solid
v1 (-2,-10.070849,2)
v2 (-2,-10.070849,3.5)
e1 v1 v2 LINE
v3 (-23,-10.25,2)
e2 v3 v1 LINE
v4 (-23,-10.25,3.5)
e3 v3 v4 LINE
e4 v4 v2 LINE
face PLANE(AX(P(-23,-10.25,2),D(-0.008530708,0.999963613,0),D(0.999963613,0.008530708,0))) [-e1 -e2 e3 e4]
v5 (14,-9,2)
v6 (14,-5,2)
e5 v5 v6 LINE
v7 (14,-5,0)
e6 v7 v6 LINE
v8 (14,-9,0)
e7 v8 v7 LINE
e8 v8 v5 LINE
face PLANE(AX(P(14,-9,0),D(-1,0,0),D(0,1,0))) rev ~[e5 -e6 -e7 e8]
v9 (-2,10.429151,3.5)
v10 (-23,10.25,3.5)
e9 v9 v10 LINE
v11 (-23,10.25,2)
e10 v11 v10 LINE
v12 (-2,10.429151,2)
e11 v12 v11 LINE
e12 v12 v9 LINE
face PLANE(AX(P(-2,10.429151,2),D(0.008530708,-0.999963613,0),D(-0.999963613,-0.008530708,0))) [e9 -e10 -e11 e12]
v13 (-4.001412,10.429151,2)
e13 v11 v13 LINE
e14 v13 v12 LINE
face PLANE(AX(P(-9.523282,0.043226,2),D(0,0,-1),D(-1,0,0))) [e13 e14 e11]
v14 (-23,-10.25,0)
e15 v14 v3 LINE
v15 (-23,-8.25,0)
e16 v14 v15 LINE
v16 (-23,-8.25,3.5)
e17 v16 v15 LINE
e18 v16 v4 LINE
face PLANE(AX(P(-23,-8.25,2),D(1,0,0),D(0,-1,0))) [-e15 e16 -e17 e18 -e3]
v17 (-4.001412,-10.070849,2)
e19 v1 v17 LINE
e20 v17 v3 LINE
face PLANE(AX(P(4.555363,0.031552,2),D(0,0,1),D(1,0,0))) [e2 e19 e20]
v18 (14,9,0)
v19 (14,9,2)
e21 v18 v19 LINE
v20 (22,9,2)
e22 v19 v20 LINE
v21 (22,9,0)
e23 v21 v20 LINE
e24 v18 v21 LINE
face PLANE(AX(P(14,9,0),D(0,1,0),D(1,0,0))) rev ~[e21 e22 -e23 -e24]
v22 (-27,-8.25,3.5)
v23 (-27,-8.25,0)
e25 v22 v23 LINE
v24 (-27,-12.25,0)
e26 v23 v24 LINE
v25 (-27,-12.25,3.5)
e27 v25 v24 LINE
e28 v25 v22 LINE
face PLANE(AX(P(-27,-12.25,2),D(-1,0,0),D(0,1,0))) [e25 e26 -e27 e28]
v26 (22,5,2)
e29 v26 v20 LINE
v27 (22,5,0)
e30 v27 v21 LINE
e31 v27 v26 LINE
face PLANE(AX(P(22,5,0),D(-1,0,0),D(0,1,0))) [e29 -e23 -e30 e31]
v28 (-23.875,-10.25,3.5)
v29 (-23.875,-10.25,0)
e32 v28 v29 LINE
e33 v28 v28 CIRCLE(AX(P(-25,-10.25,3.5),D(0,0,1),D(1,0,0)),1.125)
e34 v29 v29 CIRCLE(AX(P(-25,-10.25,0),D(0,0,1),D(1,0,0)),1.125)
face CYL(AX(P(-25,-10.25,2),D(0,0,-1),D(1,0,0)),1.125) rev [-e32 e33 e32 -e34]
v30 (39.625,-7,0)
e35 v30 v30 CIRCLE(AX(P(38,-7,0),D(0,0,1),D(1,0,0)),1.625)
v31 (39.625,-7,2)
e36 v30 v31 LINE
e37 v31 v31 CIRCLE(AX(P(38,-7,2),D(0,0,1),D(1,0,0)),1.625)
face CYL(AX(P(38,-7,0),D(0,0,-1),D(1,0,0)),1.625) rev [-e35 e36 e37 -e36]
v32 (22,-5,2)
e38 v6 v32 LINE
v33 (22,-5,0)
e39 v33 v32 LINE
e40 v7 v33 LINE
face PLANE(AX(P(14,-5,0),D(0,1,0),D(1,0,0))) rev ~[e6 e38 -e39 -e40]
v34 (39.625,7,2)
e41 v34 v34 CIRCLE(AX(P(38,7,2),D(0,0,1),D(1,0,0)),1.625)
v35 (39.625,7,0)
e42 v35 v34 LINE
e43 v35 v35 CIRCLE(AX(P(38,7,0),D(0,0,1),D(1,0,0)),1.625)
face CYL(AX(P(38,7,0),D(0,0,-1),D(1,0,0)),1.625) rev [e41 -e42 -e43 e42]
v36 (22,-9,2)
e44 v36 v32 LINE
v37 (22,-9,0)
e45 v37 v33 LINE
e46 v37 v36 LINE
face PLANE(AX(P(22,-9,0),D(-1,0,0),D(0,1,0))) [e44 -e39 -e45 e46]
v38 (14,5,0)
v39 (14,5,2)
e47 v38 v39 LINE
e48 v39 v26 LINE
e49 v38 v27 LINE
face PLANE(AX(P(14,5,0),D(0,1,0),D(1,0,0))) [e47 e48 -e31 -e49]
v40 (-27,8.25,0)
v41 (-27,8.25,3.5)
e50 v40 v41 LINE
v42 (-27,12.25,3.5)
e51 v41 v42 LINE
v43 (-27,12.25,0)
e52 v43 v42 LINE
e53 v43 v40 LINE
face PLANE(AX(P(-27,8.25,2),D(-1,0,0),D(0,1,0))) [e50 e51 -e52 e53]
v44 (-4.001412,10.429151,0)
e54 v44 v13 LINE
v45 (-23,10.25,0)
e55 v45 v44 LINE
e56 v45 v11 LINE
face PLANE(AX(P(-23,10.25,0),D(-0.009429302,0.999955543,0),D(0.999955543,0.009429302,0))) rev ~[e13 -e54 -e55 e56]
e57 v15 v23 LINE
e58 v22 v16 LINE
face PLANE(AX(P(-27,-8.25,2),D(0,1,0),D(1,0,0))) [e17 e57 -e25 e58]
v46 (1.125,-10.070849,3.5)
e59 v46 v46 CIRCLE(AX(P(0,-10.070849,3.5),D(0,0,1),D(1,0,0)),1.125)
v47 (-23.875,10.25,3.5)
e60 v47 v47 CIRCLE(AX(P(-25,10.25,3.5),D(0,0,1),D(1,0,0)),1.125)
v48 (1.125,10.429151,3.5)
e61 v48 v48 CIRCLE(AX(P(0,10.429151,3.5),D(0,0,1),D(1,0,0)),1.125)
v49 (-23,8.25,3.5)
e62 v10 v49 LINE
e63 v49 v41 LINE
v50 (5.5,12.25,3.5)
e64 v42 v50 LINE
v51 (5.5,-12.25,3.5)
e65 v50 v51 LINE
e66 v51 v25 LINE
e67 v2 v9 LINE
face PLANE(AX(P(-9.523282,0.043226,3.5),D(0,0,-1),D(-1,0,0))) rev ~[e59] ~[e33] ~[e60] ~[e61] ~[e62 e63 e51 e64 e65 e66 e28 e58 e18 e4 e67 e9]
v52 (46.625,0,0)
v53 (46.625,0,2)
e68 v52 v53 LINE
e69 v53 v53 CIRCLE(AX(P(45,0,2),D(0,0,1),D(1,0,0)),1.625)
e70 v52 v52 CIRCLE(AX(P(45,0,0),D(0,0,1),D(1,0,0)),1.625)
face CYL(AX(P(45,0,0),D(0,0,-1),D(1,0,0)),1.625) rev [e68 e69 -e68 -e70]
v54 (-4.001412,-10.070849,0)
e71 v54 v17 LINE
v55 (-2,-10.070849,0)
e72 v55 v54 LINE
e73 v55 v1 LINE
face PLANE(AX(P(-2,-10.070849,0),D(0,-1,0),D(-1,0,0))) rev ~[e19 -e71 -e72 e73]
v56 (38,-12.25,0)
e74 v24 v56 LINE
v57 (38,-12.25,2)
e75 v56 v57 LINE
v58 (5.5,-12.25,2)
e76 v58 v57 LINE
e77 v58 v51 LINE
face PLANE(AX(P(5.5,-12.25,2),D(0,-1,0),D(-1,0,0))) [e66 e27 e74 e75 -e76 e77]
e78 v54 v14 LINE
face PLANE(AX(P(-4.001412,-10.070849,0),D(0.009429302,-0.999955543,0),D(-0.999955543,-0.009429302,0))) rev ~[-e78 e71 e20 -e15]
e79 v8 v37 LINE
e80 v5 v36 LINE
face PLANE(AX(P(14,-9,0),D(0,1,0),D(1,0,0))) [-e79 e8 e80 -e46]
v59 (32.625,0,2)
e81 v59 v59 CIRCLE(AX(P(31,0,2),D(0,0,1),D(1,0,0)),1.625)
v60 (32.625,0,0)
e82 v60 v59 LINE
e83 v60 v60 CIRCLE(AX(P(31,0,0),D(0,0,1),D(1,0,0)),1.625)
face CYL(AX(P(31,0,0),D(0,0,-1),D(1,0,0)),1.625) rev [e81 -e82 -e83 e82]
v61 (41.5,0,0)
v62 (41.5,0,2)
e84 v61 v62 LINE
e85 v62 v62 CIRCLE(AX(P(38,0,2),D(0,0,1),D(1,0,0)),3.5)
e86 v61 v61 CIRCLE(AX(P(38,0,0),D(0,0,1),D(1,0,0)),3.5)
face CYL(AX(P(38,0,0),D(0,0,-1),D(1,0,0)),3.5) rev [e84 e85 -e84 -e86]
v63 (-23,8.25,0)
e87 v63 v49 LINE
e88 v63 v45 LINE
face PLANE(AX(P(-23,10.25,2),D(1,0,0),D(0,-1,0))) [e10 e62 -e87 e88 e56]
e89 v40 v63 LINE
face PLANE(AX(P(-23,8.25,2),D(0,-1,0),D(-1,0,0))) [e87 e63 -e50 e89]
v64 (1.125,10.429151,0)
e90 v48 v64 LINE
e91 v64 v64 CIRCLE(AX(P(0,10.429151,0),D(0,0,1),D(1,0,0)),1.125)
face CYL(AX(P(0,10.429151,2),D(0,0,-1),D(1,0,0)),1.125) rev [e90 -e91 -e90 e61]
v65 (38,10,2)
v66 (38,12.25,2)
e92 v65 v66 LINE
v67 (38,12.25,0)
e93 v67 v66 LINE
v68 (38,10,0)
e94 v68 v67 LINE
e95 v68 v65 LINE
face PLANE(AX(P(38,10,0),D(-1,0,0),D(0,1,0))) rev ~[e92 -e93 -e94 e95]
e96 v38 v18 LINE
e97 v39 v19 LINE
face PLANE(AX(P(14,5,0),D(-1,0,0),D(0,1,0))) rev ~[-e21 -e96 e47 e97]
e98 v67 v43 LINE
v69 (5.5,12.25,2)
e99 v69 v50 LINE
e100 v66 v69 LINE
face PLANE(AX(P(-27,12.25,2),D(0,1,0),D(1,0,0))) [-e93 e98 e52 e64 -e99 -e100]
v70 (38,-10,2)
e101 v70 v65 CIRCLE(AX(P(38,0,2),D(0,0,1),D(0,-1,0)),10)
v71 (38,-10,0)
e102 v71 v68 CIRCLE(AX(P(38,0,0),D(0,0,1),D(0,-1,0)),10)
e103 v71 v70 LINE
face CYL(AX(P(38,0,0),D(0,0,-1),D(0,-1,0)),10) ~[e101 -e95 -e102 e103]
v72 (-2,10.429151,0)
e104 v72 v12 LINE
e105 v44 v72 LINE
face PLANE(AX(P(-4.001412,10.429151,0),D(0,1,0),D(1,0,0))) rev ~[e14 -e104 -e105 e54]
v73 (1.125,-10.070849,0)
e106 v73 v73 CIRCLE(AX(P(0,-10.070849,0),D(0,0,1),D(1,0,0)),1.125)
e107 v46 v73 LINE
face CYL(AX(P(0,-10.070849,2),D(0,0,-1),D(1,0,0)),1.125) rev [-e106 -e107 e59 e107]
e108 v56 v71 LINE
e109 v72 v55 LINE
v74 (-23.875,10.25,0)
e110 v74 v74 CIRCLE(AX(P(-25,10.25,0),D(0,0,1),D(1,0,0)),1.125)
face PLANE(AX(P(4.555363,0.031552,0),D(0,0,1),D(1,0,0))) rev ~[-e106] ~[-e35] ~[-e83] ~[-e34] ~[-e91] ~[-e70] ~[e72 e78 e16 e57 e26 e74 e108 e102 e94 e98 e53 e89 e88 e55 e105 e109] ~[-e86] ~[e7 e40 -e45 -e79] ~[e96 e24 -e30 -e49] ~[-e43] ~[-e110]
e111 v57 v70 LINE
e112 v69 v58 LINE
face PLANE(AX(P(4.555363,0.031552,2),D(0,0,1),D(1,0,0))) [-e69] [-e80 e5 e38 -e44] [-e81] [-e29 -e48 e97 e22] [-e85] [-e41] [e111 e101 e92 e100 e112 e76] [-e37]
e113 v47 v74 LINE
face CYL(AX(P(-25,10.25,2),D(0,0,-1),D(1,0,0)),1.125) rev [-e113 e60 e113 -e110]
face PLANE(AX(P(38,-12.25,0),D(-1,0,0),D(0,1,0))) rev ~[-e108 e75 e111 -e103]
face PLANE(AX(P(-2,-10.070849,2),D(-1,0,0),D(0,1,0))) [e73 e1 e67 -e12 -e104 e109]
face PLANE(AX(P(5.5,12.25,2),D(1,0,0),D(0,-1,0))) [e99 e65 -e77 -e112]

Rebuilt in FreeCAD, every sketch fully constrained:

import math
import FreeCAD as App
import Part
import Sketcher

V = App.Vector
Q = App.Units.Quantity

doc = App.newDocument("Part")
body = doc.addObject("PartDesign::Body", "Body")

# Sketch on XY plane
sketch1 = body.newObject("Sketcher::SketchObject", "Sketch")
sketch1.AttachmentSupport = (doc.getObject("XY_Plane"), [""])
sketch1.MapMode = "FlatFace"
sketch1.addGeometry([
    Part.LineSegment(V(-27, -8.2, 0), V(-27, -12.2, 0)),  # 0
    Part.LineSegment(V(-27, -12.2, 0), V(38, -12.2, 0)),  # 1
    Part.LineSegment(V(38, -12.2, 0), V(38, -10, 0)),  # 2
    Part.ArcOfCircle(Part.Circle(V(38, 0, 0), V(0, 0, 1), 10), math.radians(-90), math.radians(90)),  # 3
    Part.LineSegment(V(38, 10, 0), V(38, 12.2, 0)),  # 4
    Part.LineSegment(V(38, 12.2, 0), V(-27, 12.2, 0)),  # 5
    Part.LineSegment(V(-27, 12.2, 0), V(-27, 8.2, 0)),  # 6
    Part.LineSegment(V(-27, 8.2, 0), V(-23, 8.2, 0)),  # 7
    Part.LineSegment(V(-23, 8.2, 0), V(-23, 10.2, 0)),  # 8
    Part.LineSegment(V(-23, 10.2, 0), V(-4, 10.4, 0)),  # 9
    Part.LineSegment(V(-4, 10.4, 0), V(-2, 10.4, 0)),  # 10
    Part.LineSegment(V(-2, 10.4, 0), V(-2, -10.1, 0)),  # 11
    Part.LineSegment(V(-2, -10.1, 0), V(-4, -10.1, 0)),  # 12
    Part.LineSegment(V(-4, -10.1, 0), V(-23, -10.2, 0)),  # 13
    Part.LineSegment(V(-23, -10.2, 0), V(-23, -8.2, 0)),  # 14
    Part.LineSegment(V(-23, -8.2, 0), V(-27, -8.2, 0)),  # 15
    Part.Circle(V(-25, -10.2, 0), V(0, 0, 1), 1.1),  # 16
    Part.Circle(V(0, -10.1, 0), V(0, 0, 1), 1.1),  # 17
    Part.LineSegment(V(22, -9, 0), V(14, -9, 0)),  # 18
    Part.LineSegment(V(14, -9, 0), V(14, -5, 0)),  # 19
    Part.LineSegment(V(14, -5, 0), V(22, -5, 0)),  # 20
    Part.LineSegment(V(22, -5, 0), V(22, -9, 0)),  # 21
    Part.Circle(V(38, -7, 0), V(0, 0, 1), 1.6),  # 22
    Part.Circle(V(31, 0, 0), V(0, 0, 1), 1.6),  # 23
    Part.Circle(V(38, 0, 0), V(0, 0, 1), 3.5),  # 24
    Part.Circle(V(45, 0, 0), V(0, 0, 1), 1.6),  # 25
    Part.Circle(V(-25, 10.2, 0), V(0, 0, 1), 1.1),  # 26
    Part.Circle(V(0, 10.4, 0), V(0, 0, 1), 1.1),  # 27
    Part.LineSegment(V(22, 5, 0), V(14, 5, 0)),  # 28
    Part.LineSegment(V(14, 5, 0), V(14, 9, 0)),  # 29
    Part.LineSegment(V(14, 9, 0), V(22, 9, 0)),  # 30
    Part.LineSegment(V(22, 9, 0), V(22, 5, 0)),  # 31
    Part.Circle(V(38, 7, 0), V(0, 0, 1), 1.6),  # 32
], False)
sketch1.addConstraint([
    Sketcher.Constraint("Coincident", 0, 2, 1, 1),
    Sketcher.Constraint("Coincident", 1, 2, 2, 1),
    Sketcher.Constraint("Coincident", 2, 2, 3, 1),
    Sketcher.Constraint("Coincident", 3, 2, 4, 1),
    Sketcher.Constraint("Coincident", 4, 2, 5, 1),
    Sketcher.Constraint("Coincident", 5, 2, 6, 1),
    Sketcher.Constraint("Coincident", 6, 2, 7, 1),
    Sketcher.Constraint("Coincident", 7, 2, 8, 1),
    Sketcher.Constraint("Coincident", 8, 2, 9, 1),
    Sketcher.Constraint("Coincident", 9, 2, 10, 1),
    Sketcher.Constraint("Coincident", 10, 2, 11, 1),
    Sketcher.Constraint("Coincident", 11, 2, 12, 1),
    Sketcher.Constraint("Coincident", 12, 2, 13, 1),
    Sketcher.Constraint("Coincident", 13, 2, 14, 1),
    Sketcher.Constraint("Coincident", 14, 2, 15, 1),
    Sketcher.Constraint("Coincident", 15, 2, 0, 1),
    Sketcher.Constraint("Coincident", 18, 2, 19, 1),
    Sketcher.Constraint("Coincident", 19, 2, 20, 1),
    Sketcher.Constraint("Coincident", 20, 2, 21, 1),
    Sketcher.Constraint("Coincident", 21, 2, 18, 1),
    Sketcher.Constraint("Coincident", 28, 2, 29, 1),
    Sketcher.Constraint("Coincident", 29, 2, 30, 1),
    Sketcher.Constraint("Coincident", 30, 2, 31, 1),
    Sketcher.Constraint("Coincident", 31, 2, 28, 1),
    Sketcher.Constraint("Vertical", 0),
    Sketcher.Constraint("Horizontal", 1),
    Sketcher.Constraint("Vertical", 2),
    Sketcher.Constraint("Vertical", 4),
    Sketcher.Constraint("Horizontal", 5),
    Sketcher.Constraint("Vertical", 6),
    Sketcher.Constraint("Horizontal", 7),
    Sketcher.Constraint("Vertical", 8),
    Sketcher.Constraint("Horizontal", 10),
    Sketcher.Constraint("Vertical", 11),
    Sketcher.Constraint("Horizontal", 12),
    Sketcher.Constraint("Vertical", 14),
    Sketcher.Constraint("Horizontal", 15),
    Sketcher.Constraint("Horizontal", 18),
    Sketcher.Constraint("Vertical", 19),
    Sketcher.Constraint("Horizontal", 20),
    Sketcher.Constraint("Vertical", 21),
    Sketcher.Constraint("Horizontal", 28),
    Sketcher.Constraint("Vertical", 29),
    Sketcher.Constraint("Horizontal", 30),
    Sketcher.Constraint("Vertical", 31),
    Sketcher.Constraint("Coincident", 24, 3, 3, 3),
    Sketcher.Constraint("Equal", 16, 17),
    Sketcher.Constraint("Equal", 22, 23),
    Sketcher.Constraint("Equal", 23, 25),
    Sketcher.Constraint("Equal", 17, 26),
    Sketcher.Constraint("Equal", 26, 27),
    Sketcher.Constraint("Equal", 25, 32),
    Sketcher.Constraint("Symmetric", 16, 3, 26, 3, -1),
    Sketcher.Constraint("Symmetric", 22, 3, 32, 3, -1),
    Sketcher.Constraint("Symmetric", 2, 2, 3, 2, -1),
    Sketcher.Constraint("Symmetric", 0, 2, 5, 2, -1),
    Sketcher.Constraint("Symmetric", 8, 2, 13, 2, -1),
    Sketcher.Constraint("Symmetric", 19, 2, 28, 2, -1),
    Sketcher.Constraint("Symmetric", 21, 2, 30, 2, -1),
    Sketcher.Constraint("PointOnObject", 17, 3, -2),
    Sketcher.Constraint("PointOnObject", 23, 3, -1),
    Sketcher.Constraint("PointOnObject", 25, 3, -1),
    Sketcher.Constraint("PointOnObject", 27, 3, -2),
    Sketcher.Constraint("Parallel", 9, 13),
    Sketcher.Constraint("Horizontal", 26, 3, 8, 2),
    Sketcher.Constraint("Horizontal", 27, 3, 9, 2),
    Sketcher.Constraint("Horizontal", 17, 3, 11, 2),
    Sketcher.Constraint("Vertical", 3, 3, 22, 3),
    Sketcher.Constraint("Vertical", 32, 3, 1, 2),
    Sketcher.Constraint("Vertical", 9, 2, 12, 2),
    Sketcher.Constraint("Equal", 15, 0),
    Sketcher.Constraint("Equal", 0, 6),
    Sketcher.Constraint("Equal", 6, 19),
    Sketcher.Constraint("Diameter", 24, Q("7 mm")),
    Sketcher.Constraint("Radius", 3, Q("10 mm")),
    Sketcher.Constraint("Diameter", 16, Q("2.25 mm")),
    Sketcher.Constraint("Diameter", 22, Q("3.25 mm")),
    Sketcher.Constraint("DistanceX", 1, 1, 1, 2, Q("65 mm")),
    Sketcher.Constraint("DistanceX", 7, 1, 7, 2, Q("4 mm")),
    Sketcher.Constraint("DistanceX", 18, 2, 18, 1, Q("8 mm")),
    Sketcher.Constraint("DistanceY", 8, 1, 8, 2, Q("2 mm")),
    Sketcher.Constraint("DistanceY", 11, 2, 11, 1, Q("20.5 mm")),
    Sketcher.Constraint("DistanceX", -1, 1, 3, 3, Q("38 mm")),
    Sketcher.Constraint("DistanceX", 16, 3, -1, 1, Q("25 mm")),
    Sketcher.Constraint("DistanceY", 22, 3, -1, 1, Q("7 mm")),
    Sketcher.Constraint("DistanceX", -1, 1, 23, 3, Q("31 mm")),
    Sketcher.Constraint("DistanceX", -1, 1, 25, 3, Q("45 mm")),
    Sketcher.Constraint("DistanceX", 10, 2, -1, 1, Q("2 mm")),
    Sketcher.Constraint("DistanceX", -1, 1, 18, 2, Q("14 mm")),
    Sketcher.Constraint("DistanceY", 18, 2, -1, 1, Q("9 mm")),
    Sketcher.Constraint("DistanceX", 10, 1, 10, 2, Q("2.001412 mm")),
    Sketcher.Constraint("DistanceY", 17, 3, -1, 1, Q("10.070849 mm")),
])
pad1 = body.newObject("PartDesign::Pad", "Pad")
pad1.Profile = sketch1
pad1.Length = 2

# Sketch on XY plane
sketch2 = body.newObject("Sketcher::SketchObject", "Sketch001")
sketch2.AttachmentSupport = (doc.getObject("XY_Plane"), [""])
sketch2.MapMode = "FlatFace"
sketch2.AttachmentOffset = App.Placement(V(0, 0, 2), App.Rotation())
sketch2.addGeometry([
    Part.LineSegment(V(5.5, 12.2, 0), V(-27, 12.2, 0)),  # 0
    Part.LineSegment(V(-27, 12.2, 0), V(-27, 8.2, 0)),  # 1
    Part.LineSegment(V(-27, 8.2, 0), V(-23, 8.2, 0)),  # 2
    Part.LineSegment(V(-23, 8.2, 0), V(-23, 10.2, 0)),  # 3
    Part.LineSegment(V(-23, 10.2, 0), V(-2, 10.4, 0)),  # 4
    Part.LineSegment(V(-2, 10.4, 0), V(-2, -10.1, 0)),  # 5
    Part.LineSegment(V(-2, -10.1, 0), V(-23, -10.2, 0)),  # 6
    Part.LineSegment(V(-23, -10.2, 0), V(-23, -8.2, 0)),  # 7
    Part.LineSegment(V(-23, -8.2, 0), V(-27, -8.2, 0)),  # 8
    Part.LineSegment(V(-27, -8.2, 0), V(-27, -12.2, 0)),  # 9
    Part.LineSegment(V(-27, -12.2, 0), V(5.5, -12.2, 0)),  # 10
    Part.LineSegment(V(5.5, -12.2, 0), V(5.5, 12.2, 0)),  # 11
    Part.Circle(V(0, -10.1, 0), V(0, 0, 1), 1.1),  # 12
    Part.Circle(V(-25, -10.2, 0), V(0, 0, 1), 1.1),  # 13
    Part.Circle(V(0, 10.4, 0), V(0, 0, 1), 1.1),  # 14
    Part.Circle(V(-25, 10.2, 0), V(0, 0, 1), 1.1),  # 15
], False)
sketch2.addConstraint([
    Sketcher.Constraint("Coincident", 0, 2, 1, 1),
    Sketcher.Constraint("Coincident", 1, 2, 2, 1),
    Sketcher.Constraint("Coincident", 2, 2, 3, 1),
    Sketcher.Constraint("Coincident", 3, 2, 4, 1),
    Sketcher.Constraint("Coincident", 4, 2, 5, 1),
    Sketcher.Constraint("Coincident", 5, 2, 6, 1),
    Sketcher.Constraint("Coincident", 6, 2, 7, 1),
    Sketcher.Constraint("Coincident", 7, 2, 8, 1),
    Sketcher.Constraint("Coincident", 8, 2, 9, 1),
    Sketcher.Constraint("Coincident", 9, 2, 10, 1),
    Sketcher.Constraint("Coincident", 10, 2, 11, 1),
    Sketcher.Constraint("Coincident", 11, 2, 0, 1),
    Sketcher.Constraint("Horizontal", 0),
    Sketcher.Constraint("Vertical", 1),
    Sketcher.Constraint("Horizontal", 2),
    Sketcher.Constraint("Vertical", 3),
    Sketcher.Constraint("Vertical", 5),
    Sketcher.Constraint("Vertical", 7),
    Sketcher.Constraint("Horizontal", 8),
    Sketcher.Constraint("Vertical", 9),
    Sketcher.Constraint("Horizontal", 10),
    Sketcher.Constraint("Vertical", 11),
    Sketcher.Constraint("Equal", 12, 13),
    Sketcher.Constraint("Equal", 13, 14),
    Sketcher.Constraint("Equal", 14, 15),
    Sketcher.Constraint("Symmetric", 13, 3, 15, 3, -1),
    Sketcher.Constraint("Symmetric", 3, 2, 6, 2, -1),
    Sketcher.Constraint("Symmetric", 1, 2, 8, 2, -1),
    Sketcher.Constraint("PointOnObject", 12, 3, -2),
    Sketcher.Constraint("PointOnObject", 14, 3, -2),
    Sketcher.Constraint("Parallel", 4, 6),
    Sketcher.Constraint("Horizontal", 15, 3, 3, 2),
    Sketcher.Constraint("Horizontal", 14, 3, 4, 2),
    Sketcher.Constraint("Horizontal", 12, 3, 5, 2),
    Sketcher.Constraint("Equal", 8, 1),
    Sketcher.Constraint("Equal", 1, 9),
    Sketcher.Constraint("Diameter", 12, Q("2.25 mm")),
    Sketcher.Constraint("DistanceX", 2, 1, 2, 2, Q("4 mm")),
    Sketcher.Constraint("DistanceY", 3, 1, 3, 2, Q("2 mm")),
    Sketcher.Constraint("DistanceX", 0, 2, 0, 1, Q("32.5 mm")),
    Sketcher.Constraint("DistanceY", 5, 2, 5, 1, Q("20.5 mm")),
    Sketcher.Constraint("DistanceX", 13, 3, -1, 1, Q("25 mm")),
    Sketcher.Constraint("DistanceX", 0, 2, -1, 1, Q("27 mm")),
    Sketcher.Constraint("DistanceX", 4, 2, -1, 1, Q("2 mm")),
    Sketcher.Constraint("DistanceY", 12, 3, -1, 1, Q("10.070849 mm")),
])
pad2 = body.newObject("PartDesign::Pad", "Pad001")
pad2.Profile = sketch2
pad2.Length = 1.5

doc.recompute()
